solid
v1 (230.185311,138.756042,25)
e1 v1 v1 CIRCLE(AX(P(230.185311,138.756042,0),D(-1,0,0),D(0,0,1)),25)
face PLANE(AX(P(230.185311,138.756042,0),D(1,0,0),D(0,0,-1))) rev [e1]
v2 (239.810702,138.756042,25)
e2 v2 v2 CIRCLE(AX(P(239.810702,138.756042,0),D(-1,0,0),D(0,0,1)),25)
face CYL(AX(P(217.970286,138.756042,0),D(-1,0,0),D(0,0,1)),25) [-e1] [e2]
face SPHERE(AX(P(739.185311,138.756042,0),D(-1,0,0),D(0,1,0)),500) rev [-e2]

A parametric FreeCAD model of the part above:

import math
import FreeCAD as App
import Part
import Sketcher
from FreeCAD import Vector

doc = App.newDocument("Part")
body = doc.addObject("PartDesign::Body", "Body")

sketch1 = body.newObject("Sketcher::SketchObject", "Sketch")
sketch1.AttachmentSupport = (doc.getObject("XY_Plane"), [""])
sketch1.MapMode = "FlatFace"
sketch1.addGeometry(Part.LineSegment(Vector(230.185311, 163.756042, 0), Vector(230.185311, 138.756042, 0)), False)
sketch1.addGeometry(Part.LineSegment(Vector(230.185311, 138.756042, 0), Vector(239.185311, 138.756042, 0)), False)
sketch1.addGeometry(Part.ArcOfCircle(Part.Circle(Vector(739.185312, 138.756042, 0), Vector(0, 0, 1), 500.000001), math.radians(177.134016), math.radians(180)), False)
sketch1.addGeometry(Part.LineSegment(Vector(239.810702, 163.756042, 0), Vector(230.185311, 163.756042, 0)), False)
sketch1.addGeometry(Part.LineSegment(Vector(230.185311, 138.756042, 0), Vector(739.185312, 138.756042, 0)), True)
sketch1.addConstraint(Sketcher.Constraint("Coincident", 0, 2, 1, 1))
sketch1.addConstraint(Sketcher.Constraint("Coincident", 1, 2, 2, 2))
sketch1.addConstraint(Sketcher.Constraint("Coincident", 2, 1, 3, 1))
sketch1.addConstraint(Sketcher.Constraint("Coincident", 3, 2, 0, 1))
sketch1.addConstraint(Sketcher.Constraint("Vertical", 0))
sketch1.addConstraint(Sketcher.Constraint("Horizontal", 1))
sketch1.addConstraint(Sketcher.Constraint("Horizontal", 3))
sketch1.addConstraint(Sketcher.Constraint("Horizontal", 4))
sketch1.addConstraint(Sketcher.Constraint("Coincident", 4, 1, 0, 2))
sketch1.addConstraint(Sketcher.Constraint("Coincident", 4, 2, 2, 3))
sketch1.addConstraint(Sketcher.Constraint("Radius", 2, 500.000001))
sketch1.addConstraint(Sketcher.Constraint("DistanceX", 1, 1, 1, 2, 9.0))
sketch1.addConstraint(Sketcher.Constraint("DistanceY", 0, 2, 0, 1, 25.0))
sketch1.addConstraint(Sketcher.Constraint("DistanceX", -1, 1, 2, 3, 739.185312))
sketch1.addConstraint(Sketcher.Constraint("DistanceY", -1, 1, 2, 3, 138.756042))
revolution = body.newObject("PartDesign::Revolution", "Revolution")
revolution.Profile = sketch1
revolution.ReferenceAxis = (sketch1, ["Axis0"])
revolution.Angle = 360

doc.recompute()
